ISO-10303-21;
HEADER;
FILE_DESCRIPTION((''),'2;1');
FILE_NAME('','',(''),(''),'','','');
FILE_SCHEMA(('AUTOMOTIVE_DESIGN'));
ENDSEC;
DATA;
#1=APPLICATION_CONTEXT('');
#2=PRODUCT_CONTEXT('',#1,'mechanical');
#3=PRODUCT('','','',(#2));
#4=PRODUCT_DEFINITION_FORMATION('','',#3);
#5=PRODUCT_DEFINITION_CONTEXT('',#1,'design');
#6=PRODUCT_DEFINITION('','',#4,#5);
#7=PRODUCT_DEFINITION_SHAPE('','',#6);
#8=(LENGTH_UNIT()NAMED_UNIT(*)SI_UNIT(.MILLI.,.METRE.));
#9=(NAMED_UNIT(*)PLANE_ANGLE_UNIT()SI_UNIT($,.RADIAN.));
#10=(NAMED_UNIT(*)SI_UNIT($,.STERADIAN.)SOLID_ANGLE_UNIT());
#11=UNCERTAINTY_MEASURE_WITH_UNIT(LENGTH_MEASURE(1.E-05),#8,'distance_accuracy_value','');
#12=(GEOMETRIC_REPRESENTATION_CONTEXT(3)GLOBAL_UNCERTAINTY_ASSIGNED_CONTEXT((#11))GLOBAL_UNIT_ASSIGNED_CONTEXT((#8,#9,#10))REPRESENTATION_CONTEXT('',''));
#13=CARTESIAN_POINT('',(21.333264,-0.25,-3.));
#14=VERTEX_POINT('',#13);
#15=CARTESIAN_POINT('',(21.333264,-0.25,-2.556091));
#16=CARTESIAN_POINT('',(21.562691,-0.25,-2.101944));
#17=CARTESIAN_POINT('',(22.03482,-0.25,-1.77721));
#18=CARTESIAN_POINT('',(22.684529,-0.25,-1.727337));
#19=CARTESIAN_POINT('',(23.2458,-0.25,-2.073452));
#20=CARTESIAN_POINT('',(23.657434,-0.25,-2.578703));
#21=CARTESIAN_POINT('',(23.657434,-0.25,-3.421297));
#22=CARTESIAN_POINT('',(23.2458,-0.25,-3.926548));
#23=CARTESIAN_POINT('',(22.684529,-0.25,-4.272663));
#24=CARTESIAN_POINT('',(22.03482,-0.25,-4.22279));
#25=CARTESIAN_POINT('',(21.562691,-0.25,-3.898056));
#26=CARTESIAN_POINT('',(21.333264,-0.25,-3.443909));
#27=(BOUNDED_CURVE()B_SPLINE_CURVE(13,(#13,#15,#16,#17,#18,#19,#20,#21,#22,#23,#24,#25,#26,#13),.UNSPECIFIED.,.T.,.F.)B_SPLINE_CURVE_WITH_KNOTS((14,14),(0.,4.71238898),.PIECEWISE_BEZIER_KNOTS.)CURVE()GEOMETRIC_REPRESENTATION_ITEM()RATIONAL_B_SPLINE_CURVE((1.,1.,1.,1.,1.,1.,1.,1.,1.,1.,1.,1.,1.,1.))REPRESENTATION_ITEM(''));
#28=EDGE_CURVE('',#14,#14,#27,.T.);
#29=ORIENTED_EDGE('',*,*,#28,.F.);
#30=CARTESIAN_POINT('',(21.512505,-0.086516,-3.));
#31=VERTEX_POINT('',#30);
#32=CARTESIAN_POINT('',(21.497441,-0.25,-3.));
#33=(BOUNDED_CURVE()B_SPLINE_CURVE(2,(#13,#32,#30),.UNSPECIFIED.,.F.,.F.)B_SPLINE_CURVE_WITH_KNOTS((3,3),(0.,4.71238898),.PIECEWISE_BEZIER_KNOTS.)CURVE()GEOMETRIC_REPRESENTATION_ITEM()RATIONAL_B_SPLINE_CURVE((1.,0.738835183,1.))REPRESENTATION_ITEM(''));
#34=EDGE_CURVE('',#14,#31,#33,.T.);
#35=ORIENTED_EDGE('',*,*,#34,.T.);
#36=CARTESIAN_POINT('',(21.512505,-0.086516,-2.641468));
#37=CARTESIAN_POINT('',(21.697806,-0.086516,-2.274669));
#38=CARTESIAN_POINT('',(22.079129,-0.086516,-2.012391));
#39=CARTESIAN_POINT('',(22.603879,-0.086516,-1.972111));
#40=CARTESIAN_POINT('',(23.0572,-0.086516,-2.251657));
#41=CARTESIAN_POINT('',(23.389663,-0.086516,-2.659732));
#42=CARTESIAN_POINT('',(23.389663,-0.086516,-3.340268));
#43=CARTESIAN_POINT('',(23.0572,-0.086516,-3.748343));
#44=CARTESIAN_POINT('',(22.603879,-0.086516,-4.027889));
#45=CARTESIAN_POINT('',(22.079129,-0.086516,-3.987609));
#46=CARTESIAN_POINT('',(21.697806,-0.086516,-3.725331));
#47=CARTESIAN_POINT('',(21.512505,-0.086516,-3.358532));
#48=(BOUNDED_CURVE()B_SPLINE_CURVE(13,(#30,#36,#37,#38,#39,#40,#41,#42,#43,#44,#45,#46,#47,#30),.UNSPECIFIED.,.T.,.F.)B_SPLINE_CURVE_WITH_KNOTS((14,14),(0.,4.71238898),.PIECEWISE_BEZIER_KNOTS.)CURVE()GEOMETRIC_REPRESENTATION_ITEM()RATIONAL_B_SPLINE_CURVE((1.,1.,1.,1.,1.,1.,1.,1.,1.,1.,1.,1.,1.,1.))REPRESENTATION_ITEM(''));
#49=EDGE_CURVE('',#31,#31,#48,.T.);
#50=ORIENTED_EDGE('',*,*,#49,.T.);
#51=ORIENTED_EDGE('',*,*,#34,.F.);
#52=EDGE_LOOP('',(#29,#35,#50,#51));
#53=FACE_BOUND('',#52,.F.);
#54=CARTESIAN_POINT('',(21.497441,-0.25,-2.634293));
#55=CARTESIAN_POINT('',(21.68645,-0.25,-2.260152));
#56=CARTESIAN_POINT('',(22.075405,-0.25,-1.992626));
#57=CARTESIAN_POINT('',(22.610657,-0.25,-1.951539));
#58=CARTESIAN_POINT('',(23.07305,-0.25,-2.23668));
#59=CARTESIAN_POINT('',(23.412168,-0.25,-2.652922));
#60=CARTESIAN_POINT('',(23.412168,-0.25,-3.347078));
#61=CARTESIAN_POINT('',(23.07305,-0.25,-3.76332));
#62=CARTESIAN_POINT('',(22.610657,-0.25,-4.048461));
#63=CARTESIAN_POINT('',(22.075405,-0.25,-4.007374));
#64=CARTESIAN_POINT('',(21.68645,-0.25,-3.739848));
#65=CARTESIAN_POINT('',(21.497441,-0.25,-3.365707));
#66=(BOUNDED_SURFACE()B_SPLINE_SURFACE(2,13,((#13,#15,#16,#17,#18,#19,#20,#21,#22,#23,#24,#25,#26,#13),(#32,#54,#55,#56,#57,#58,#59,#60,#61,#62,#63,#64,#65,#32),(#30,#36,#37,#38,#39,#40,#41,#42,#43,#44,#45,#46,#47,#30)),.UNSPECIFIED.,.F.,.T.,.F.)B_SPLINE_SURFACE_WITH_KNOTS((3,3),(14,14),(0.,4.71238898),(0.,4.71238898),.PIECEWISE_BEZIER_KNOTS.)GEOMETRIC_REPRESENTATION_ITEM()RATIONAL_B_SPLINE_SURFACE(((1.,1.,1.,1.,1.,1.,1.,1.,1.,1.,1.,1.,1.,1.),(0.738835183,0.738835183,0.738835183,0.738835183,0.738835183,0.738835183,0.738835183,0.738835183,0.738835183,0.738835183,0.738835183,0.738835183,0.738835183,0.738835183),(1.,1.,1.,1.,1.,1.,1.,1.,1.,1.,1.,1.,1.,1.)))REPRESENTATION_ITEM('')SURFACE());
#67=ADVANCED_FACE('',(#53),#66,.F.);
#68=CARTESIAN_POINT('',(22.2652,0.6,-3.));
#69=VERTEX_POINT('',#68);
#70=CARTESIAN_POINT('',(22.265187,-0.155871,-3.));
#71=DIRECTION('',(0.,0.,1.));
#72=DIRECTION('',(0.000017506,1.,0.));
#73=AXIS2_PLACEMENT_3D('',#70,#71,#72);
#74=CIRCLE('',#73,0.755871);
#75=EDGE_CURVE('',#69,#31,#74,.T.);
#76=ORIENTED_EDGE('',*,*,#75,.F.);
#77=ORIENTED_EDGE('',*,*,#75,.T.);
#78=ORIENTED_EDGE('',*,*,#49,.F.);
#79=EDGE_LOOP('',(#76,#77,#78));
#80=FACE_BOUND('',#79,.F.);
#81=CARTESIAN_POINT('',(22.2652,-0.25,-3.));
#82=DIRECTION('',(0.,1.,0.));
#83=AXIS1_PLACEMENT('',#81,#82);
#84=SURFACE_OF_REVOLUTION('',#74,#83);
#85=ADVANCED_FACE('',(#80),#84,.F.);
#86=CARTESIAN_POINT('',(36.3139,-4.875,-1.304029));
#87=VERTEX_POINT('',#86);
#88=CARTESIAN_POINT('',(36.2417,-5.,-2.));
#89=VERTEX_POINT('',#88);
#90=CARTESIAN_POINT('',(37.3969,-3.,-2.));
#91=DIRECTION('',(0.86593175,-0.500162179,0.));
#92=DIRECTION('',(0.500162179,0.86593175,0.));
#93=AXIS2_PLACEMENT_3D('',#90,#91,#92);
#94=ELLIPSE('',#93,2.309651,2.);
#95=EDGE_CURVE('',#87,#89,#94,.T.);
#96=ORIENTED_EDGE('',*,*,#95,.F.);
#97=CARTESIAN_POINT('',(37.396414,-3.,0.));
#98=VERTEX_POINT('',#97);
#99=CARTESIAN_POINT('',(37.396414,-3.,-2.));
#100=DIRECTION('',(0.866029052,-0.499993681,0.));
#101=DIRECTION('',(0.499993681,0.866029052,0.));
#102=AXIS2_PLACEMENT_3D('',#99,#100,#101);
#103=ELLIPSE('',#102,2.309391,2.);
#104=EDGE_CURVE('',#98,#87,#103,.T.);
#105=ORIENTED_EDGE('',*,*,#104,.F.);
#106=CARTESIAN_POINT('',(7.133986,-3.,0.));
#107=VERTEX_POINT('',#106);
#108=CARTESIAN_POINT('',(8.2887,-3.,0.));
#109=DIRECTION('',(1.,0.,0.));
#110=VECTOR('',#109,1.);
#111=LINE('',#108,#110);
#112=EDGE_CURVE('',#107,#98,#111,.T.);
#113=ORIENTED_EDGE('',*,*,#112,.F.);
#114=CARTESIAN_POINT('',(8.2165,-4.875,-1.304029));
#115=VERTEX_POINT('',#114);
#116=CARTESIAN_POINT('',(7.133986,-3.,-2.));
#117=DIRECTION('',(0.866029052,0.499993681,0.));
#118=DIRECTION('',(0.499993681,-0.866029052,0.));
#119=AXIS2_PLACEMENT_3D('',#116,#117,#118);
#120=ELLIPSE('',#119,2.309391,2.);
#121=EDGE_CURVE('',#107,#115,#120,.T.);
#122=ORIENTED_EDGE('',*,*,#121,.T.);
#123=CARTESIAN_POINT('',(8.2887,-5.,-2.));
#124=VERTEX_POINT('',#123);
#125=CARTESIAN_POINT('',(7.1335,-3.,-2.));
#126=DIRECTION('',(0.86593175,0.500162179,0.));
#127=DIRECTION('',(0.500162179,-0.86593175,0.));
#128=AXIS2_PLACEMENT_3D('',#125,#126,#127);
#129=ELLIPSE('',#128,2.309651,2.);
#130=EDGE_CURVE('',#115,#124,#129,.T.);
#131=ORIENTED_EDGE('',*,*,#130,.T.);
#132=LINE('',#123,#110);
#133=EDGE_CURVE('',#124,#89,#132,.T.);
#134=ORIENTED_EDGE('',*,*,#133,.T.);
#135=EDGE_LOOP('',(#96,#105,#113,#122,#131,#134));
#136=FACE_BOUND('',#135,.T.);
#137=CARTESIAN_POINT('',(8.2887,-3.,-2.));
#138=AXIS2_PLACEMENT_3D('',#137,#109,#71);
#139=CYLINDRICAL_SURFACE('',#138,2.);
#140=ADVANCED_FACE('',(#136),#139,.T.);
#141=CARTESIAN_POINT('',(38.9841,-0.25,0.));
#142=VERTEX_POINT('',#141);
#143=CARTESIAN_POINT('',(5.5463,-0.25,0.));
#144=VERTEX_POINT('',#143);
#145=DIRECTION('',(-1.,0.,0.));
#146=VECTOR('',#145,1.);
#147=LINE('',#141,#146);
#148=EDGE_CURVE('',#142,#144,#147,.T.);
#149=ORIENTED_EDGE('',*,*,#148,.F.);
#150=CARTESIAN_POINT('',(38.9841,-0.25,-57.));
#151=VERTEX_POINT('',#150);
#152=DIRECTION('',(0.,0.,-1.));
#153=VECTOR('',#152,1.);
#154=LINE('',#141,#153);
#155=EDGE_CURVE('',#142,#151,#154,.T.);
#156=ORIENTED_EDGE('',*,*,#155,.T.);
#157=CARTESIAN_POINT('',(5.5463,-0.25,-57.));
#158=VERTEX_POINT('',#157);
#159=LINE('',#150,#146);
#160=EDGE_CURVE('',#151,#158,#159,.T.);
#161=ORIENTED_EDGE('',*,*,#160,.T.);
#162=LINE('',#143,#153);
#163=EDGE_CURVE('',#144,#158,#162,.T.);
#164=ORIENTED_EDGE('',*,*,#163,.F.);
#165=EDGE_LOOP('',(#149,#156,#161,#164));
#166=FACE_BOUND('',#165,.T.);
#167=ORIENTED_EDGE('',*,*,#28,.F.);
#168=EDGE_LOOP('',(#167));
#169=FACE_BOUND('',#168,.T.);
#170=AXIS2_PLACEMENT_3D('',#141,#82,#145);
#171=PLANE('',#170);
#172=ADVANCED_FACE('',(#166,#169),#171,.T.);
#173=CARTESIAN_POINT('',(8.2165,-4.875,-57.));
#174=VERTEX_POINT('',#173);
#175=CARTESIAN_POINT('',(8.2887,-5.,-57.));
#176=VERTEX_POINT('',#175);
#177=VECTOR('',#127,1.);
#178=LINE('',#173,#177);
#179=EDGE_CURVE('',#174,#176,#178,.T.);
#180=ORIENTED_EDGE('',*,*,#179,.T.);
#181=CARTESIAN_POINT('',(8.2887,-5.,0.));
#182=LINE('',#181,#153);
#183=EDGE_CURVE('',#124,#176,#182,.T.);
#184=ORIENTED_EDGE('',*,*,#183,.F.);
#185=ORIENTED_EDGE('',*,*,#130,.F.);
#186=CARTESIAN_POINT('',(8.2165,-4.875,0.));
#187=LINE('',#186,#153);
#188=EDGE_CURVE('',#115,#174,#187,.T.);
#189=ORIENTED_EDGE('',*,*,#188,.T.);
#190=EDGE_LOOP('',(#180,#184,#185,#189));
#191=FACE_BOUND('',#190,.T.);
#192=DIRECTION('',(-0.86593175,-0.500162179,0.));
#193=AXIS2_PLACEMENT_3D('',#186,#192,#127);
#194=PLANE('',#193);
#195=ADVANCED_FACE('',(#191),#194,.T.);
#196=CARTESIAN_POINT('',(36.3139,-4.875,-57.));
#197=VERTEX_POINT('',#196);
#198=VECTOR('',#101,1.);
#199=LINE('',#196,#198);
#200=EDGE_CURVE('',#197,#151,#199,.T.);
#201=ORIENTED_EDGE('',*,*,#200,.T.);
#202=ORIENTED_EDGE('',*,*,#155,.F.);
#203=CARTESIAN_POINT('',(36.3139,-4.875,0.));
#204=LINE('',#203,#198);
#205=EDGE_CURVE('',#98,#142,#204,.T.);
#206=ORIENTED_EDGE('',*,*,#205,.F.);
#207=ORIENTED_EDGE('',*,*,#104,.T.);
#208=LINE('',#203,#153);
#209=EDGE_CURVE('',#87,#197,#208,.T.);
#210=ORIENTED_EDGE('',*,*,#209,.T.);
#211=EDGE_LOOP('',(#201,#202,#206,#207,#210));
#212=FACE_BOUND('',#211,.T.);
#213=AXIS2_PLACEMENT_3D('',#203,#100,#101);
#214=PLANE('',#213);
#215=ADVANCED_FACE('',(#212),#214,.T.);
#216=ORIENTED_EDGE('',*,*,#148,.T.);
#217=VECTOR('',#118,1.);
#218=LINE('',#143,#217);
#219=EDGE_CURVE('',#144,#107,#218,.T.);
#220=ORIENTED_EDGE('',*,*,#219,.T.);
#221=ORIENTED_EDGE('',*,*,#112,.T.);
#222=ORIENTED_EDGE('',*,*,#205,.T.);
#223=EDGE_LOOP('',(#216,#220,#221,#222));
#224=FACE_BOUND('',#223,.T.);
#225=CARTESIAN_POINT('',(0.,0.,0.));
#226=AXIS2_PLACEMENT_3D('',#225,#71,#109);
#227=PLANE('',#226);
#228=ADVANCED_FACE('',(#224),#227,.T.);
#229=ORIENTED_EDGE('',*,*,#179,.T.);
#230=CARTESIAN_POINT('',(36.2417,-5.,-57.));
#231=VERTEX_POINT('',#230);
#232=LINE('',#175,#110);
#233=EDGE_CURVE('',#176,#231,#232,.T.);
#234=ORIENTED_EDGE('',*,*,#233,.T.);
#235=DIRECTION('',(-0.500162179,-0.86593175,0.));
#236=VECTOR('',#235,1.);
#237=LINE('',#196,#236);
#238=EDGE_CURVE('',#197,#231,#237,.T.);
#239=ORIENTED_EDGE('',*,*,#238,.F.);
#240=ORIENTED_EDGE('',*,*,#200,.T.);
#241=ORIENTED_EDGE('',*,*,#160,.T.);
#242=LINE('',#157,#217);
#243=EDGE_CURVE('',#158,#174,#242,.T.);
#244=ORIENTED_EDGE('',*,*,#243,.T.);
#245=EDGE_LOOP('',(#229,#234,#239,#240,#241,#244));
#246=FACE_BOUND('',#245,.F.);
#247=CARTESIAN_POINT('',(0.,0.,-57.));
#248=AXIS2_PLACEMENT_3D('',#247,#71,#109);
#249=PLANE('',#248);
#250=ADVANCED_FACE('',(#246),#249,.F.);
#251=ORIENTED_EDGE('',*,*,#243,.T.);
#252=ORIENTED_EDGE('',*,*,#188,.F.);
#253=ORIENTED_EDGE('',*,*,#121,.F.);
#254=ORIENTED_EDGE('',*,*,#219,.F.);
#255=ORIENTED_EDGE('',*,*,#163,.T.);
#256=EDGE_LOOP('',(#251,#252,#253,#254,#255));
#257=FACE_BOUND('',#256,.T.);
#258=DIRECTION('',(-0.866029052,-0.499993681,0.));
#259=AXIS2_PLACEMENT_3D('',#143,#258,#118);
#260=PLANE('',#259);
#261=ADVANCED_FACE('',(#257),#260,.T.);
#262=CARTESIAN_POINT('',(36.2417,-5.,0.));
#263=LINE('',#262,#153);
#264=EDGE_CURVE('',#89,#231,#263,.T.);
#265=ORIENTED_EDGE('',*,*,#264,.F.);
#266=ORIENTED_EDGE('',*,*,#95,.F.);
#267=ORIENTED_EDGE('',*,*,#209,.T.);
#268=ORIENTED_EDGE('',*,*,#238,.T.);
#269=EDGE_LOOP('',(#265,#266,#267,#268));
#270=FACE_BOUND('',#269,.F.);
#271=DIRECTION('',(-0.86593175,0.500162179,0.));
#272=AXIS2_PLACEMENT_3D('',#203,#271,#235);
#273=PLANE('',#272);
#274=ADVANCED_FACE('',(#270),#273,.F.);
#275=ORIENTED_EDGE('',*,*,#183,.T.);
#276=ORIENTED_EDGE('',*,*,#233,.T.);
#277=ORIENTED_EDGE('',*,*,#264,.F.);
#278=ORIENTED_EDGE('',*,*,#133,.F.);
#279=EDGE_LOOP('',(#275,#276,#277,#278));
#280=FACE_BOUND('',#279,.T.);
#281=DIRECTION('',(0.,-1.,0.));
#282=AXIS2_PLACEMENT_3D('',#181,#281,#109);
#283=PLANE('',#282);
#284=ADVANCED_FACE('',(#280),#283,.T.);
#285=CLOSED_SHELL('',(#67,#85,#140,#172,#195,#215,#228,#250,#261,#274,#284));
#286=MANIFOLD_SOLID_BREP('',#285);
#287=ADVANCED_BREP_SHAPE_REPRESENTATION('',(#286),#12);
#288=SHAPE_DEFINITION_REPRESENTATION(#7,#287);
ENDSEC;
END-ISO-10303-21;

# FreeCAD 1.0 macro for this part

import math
import FreeCAD as App
import Part
import Sketcher

V = App.Vector
Q = App.Units.Quantity


def edges_at(feature, points):
    """Names of the edges that pass closest to the given points."""
    edges = feature.Shape.Edges
    near = lambda p: min(range(len(edges)), key=lambda i: edges[i].distToShape(Part.Vertex(*p))[0])
    return sorted({f"Edge{near(p) + 1}" for p in points})


def add_polygon(sketch, points):
    """Adds a closed chain of lines whose ends are joined by coincident constraints."""
    first, n = sketch.GeometryCount, len(points)
    for a, b in zip(points, points[1:] + points[:1]):
        sketch.addGeometry(Part.LineSegment(App.Vector(*a, 0), App.Vector(*b, 0)), False)
    for i in range(n):
        sketch.addConstraint(Sketcher.Constraint("Coincident", first + i, 2, first + (i + 1) % n, 1))

doc = App.newDocument("Part")
body = doc.addObject("PartDesign::Body", "Body")

# Sketch on XY plane
sketch1 = body.newObject("Sketcher::SketchObject", "Sketch")
sketch1.AttachmentSupport = (doc.getObject("XY_Plane"), [""])
sketch1.MapMode = "FlatFace"
add_polygon(sketch1, [(36.24, -5), (36.31, -4.88), (38.98, -0.25), (5.55, -0.25), (8.22, -4.88), (8.29, -5)])  # lines 0-5
sketch1.addConstraint(Sketcher.Constraint("Horizontal", 2))
sketch1.addConstraint(Sketcher.Constraint("Horizontal", 5))
sketch1.addConstraint(Sketcher.Constraint("Parallel", 0, 1))
sketch1.addConstraint(Sketcher.Constraint("Parallel", 3, 4))
sketch1.addConstraint(Sketcher.Constraint("Horizontal", 0, 2, 3, 2))
sketch1.addConstraint(Sketcher.Constraint("Equal", 1, 3))
sketch1.addConstraint(Sketcher.Constraint("DistanceY", 1, 2, -1, 1, Q("0.25 mm")))
sketch1.addConstraint(Sketcher.Constraint("Angle", 1, Q("60.0004 deg")))
sketch1.addConstraint(Sketcher.Constraint("DistanceY", 4, 2, 2, 2, Q("4.75 mm")))
sketch1.addConstraint(Sketcher.Constraint("DistanceX", 5, 1, 5, 2, Q("27.953 mm")))
sketch1.addConstraint(Sketcher.Constraint("DistanceX", -1, 1, 0, 2, Q("36.314 mm")))
sketch1.addConstraint(Sketcher.Constraint("DistanceY", 0, 2, -1, 1, Q("4.875 mm")))
pad1 = body.newObject("PartDesign::Pad", "Pad")
pad1.Profile = sketch1
pad1.Length = 57
pad1.Reversed = True

# Sketch on XY plane
sketch2 = body.newObject("Sketcher::SketchObject", "Sketch001")
sketch2.AttachmentSupport = (doc.getObject("XY_Plane"), [""])
sketch2.MapMode = "FlatFace"
sketch2.AttachmentOffset = App.Placement(V(0, 0, -3), App.Rotation())
sketch2.addGeometry(Part.LineSegment(V(22.3, -0.2, 0), V(22.3, 0.6, 0)), False)
sketch2.addGeometry(Part.ArcOfCircle(Part.Circle(V(22.3, -0.2, 0), V(0, 0, 1), 0.8), math.radians(90), math.radians(187)), False)
sketch2.addGeometry(Part.LineSegment(V(21.5, -0.2, 0), V(22.3, -0.2, 0)), False)
sketch2.addGeometry(Part.LineSegment(V(22.3, -0.2, 0), V(22.3, 0.6, 0)), True)  # axis
sketch2.addConstraint(Sketcher.Constraint("Coincident", 0, 2, 1, 1))
sketch2.addConstraint(Sketcher.Constraint("Coincident", 1, 2, 2, 1))
sketch2.addConstraint(Sketcher.Constraint("Coincident", 2, 2, 0, 1))
sketch2.addConstraint(Sketcher.Constraint("Vertical", 0))
sketch2.addConstraint(Sketcher.Constraint("Horizontal", 2))
sketch2.addConstraint(Sketcher.Constraint("Vertical", 3))
sketch2.addConstraint(Sketcher.Constraint("Coincident", 3, 1, 2, 2))
sketch2.addConstraint(Sketcher.Constraint("Vertical", 1, 3, 0, 2))
sketch2.addConstraint(Sketcher.Constraint("Equal", 0, 3))
sketch2.addConstraint(Sketcher.Constraint("DistanceX", 2, 1, 2, 2, Q("0.75 mm")))
sketch2.addConstraint(Sketcher.Constraint("DistanceY", 0, 1, 0, 2, Q("0.85 mm")))
sketch2.addConstraint(Sketcher.Constraint("DistanceY", -1, 1, 0, 2, Q("0.6 mm")))
sketch2.addConstraint(Sketcher.Constraint("DistanceX", -1, 1, 1, 3, Q("22.2652 mm")))
revolution = body.newObject("PartDesign::Revolution", "Revolution")
revolution.Profile = sketch2
revolution.ReferenceAxis = (sketch2, ["Axis0"])
revolution.Angle = 360
doc.recompute()

fillet = body.newObject("PartDesign::Fillet", "Fillet")
fillet.Base = (revolution, edges_at(revolution, [(23.015, -0.25, -3)]))
fillet.Radius = 0.18
doc.recompute()

fillet2 = body.newObject("PartDesign::Fillet", "Fillet001")
fillet2.Base = (fillet, edges_at(fillet, [(22.265, -5, 0)]))
fillet2.Radius = 2

doc.recompute()
